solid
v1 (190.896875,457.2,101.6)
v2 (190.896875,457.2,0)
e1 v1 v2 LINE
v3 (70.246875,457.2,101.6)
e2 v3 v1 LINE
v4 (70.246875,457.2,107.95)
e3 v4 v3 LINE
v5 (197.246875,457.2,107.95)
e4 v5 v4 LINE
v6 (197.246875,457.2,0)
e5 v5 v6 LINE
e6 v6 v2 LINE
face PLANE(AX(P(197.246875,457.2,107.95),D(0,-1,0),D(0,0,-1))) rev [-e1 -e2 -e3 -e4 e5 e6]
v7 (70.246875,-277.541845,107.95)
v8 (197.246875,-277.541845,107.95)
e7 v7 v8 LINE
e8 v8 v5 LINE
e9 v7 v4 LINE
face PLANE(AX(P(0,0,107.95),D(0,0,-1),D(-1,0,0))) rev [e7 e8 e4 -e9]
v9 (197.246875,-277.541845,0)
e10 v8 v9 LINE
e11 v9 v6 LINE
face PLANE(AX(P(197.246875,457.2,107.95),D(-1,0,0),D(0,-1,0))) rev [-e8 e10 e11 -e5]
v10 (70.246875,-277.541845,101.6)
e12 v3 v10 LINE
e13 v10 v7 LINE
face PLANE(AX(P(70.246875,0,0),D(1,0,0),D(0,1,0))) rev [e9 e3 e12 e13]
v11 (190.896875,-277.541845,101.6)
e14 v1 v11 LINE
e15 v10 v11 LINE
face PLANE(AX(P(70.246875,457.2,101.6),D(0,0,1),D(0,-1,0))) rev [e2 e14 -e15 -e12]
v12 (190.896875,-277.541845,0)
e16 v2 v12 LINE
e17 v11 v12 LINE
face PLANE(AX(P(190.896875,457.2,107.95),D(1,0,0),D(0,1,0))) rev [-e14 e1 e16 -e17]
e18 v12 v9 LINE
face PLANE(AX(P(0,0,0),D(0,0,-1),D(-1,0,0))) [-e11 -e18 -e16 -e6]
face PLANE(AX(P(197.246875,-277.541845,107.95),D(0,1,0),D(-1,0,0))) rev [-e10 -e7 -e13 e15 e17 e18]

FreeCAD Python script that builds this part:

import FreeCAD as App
import Part
import Sketcher
from FreeCAD import Vector
Q = App.Units.Quantity

doc = App.newDocument("Part")
params = doc.addObject("Spreadsheet::Sheet", "Params")
for row, (alias, value) in enumerate([
    ("sketch1_width", "0.25 in"),
    ("pad1_length", "4.25 in"),
    ("sketch2_height", "0.25 in"),
    ("pad2_length", "4.75 in"),
], start=1):
    params.set(f"A{row}", alias)
    params.set(f"B{row}", "=" + value)
    params.setAlias(f"B{row}", alias)

body = doc.addObject("PartDesign::Body", "Body")

sketch1 = body.newObject("Sketcher::SketchObject", "Sketch")
sketch1.AttachmentSupport = (doc.getObject("XY_Plane"), [""])
sketch1.MapMode = "FlatFace"
sketch1.addGeometry(Part.LineSegment(Vector(191, 457, 0), Vector(191, -278, 0)), False)
sketch1.addGeometry(Part.LineSegment(Vector(191, -278, 0), Vector(197, -278, 0)), False)
sketch1.addGeometry(Part.LineSegment(Vector(197, -278, 0), Vector(197, 457, 0)), False)
sketch1.addGeometry(Part.LineSegment(Vector(197, 457, 0), Vector(191, 457, 0)), False)
sketch1.addConstraint(Sketcher.Constraint("Coincident", 0, 2, 1, 1))
sketch1.addConstraint(Sketcher.Constraint("Coincident", 1, 2, 2, 1))
sketch1.addConstraint(Sketcher.Constraint("Coincident", 2, 2, 3, 1))
sketch1.addConstraint(Sketcher.Constraint("Coincident", 3, 2, 0, 1))
sketch1.addConstraint(Sketcher.Constraint("Vertical", 0))
sketch1.addConstraint(Sketcher.Constraint("Horizontal", 1))
sketch1.addConstraint(Sketcher.Constraint("Vertical", 2))
sketch1.addConstraint(Sketcher.Constraint("Horizontal", 3))
sketch1.addConstraint(Sketcher.Constraint("DistanceY", -1, 1, 2, 2, Q("18 in")))
sketch1.addConstraint(Sketcher.Constraint("DistanceX", 1, 1, 1, 2, Q("0.25 in")))
sketch1.addConstraint(Sketcher.Constraint("DistanceX", -1, 1, 0, 2, Q("7.515625 in")))
sketch1.addConstraint(Sketcher.Constraint("DistanceY", 0, 2, 0, 1, Q("734.741845 mm")))
sketch1.setExpression("Constraints[9]", "Params.sketch1_width")
pad1 = body.newObject("PartDesign::Pad", "Pad")
pad1.Profile = sketch1
pad1.setExpression("Length", "Params.pad1_length")

sketch2 = body.newObject("Sketcher::SketchObject", "Sketch001")
sketch2.AttachmentSupport = (doc.getObject("YZ_Plane"), [""])
sketch2.MapMode = "FlatFace"
sketch2.AttachmentOffset = App.Placement(Vector(0, 0, 7.515625 * 25.4), App.Rotation())
sketch2.addGeometry(Part.LineSegment(Vector(457, 102, 0), Vector(-278, 102, 0)), False)
sketch2.addGeometry(Part.LineSegment(Vector(-278, 102, 0), Vector(-278, 108, 0)), False)
sketch2.addGeometry(Part.LineSegment(Vector(-278, 108, 0), Vector(457, 108, 0)), False)
sketch2.addGeometry(Part.LineSegment(Vector(457, 108, 0), Vector(457, 102, 0)), False)
sketch2.addConstraint(Sketcher.Constraint("Coincident", 0, 2, 1, 1))
sketch2.addConstraint(Sketcher.Constraint("Coincident", 1, 2, 2, 1))
sketch2.addConstraint(Sketcher.Constraint("Coincident", 2, 2, 3, 1))
sketch2.addConstraint(Sketcher.Constraint("Coincident", 3, 2, 0, 1))
sketch2.addConstraint(Sketcher.Constraint("Horizontal", 0))
sketch2.addConstraint(Sketcher.Constraint("Vertical", 1))
sketch2.addConstraint(Sketcher.Constraint("Horizontal", 2))
sketch2.addConstraint(Sketcher.Constraint("Vertical", 3))
sketch2.addConstraint(Sketcher.Constraint("DistanceY", -1, 1, 0, 2, Q("4 in")))
sketch2.addConstraint(Sketcher.Constraint("DistanceX", -1, 1, 2, 2, Q("18 in")))
sketch2.addConstraint(Sketcher.Constraint("DistanceY", 1, 1, 1, 2, Q("0.25 in")))
sketch2.addConstraint(Sketcher.Constraint("DistanceX", 0, 2, 0, 1, Q("734.741845 mm")))
sketch2.setExpression("Constraints[10]", "Params.sketch2_height")
pad2 = body.newObject("PartDesign::Pad", "Pad001")
pad2.Profile = sketch2
pad2.setExpression("Length", "Params.pad2_length")
pad2.Reversed = True

doc.recompute()
